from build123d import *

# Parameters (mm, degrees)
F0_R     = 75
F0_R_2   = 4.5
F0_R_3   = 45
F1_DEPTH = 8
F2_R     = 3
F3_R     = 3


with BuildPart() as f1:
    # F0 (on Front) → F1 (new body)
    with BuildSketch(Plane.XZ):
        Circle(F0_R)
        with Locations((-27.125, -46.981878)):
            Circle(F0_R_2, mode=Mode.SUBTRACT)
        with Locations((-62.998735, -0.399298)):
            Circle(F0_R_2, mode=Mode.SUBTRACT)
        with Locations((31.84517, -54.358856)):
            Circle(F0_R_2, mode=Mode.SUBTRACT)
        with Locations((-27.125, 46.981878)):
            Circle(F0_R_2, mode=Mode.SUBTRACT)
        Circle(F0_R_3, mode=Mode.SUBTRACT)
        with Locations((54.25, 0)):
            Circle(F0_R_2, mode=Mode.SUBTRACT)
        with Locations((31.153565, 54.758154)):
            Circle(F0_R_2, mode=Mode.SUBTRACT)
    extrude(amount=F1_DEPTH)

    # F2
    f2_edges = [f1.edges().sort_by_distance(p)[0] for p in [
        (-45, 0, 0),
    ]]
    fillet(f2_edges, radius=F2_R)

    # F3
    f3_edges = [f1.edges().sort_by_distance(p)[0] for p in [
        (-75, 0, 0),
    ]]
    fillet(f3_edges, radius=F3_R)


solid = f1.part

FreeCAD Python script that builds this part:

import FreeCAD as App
import Part
import Sketcher

V = App.Vector
Q = App.Units.Quantity


def edges_at(feature, points):
    """Names of the edges that pass closest to the given points."""
    edges = feature.Shape.Edges
    near = lambda p: min(range(len(edges)), key=lambda i: edges[i].distToShape(Part.Vertex(*p))[0])
    return sorted({f"Edge{near(p) + 1}" for p in points})

doc = App.newDocument("Part")
body = doc.addObject("PartDesign::Body", "Body")

sketch1 = body.newObject("Sketcher::SketchObject", "Sketch")
sketch1.AttachmentSupport = (doc.getObject("XZ_Plane"), [""])
sketch1.MapMode = "FlatFace"
sketch1.addGeometry(Part.Circle(V(0, 0, 0), V(0, 0, 1), 75), False)
sketch1.addGeometry(Part.Circle(V(-27.125, -46.981878, 0), V(0, 0, 1), 4.5), False)
sketch1.addGeometry(Part.Circle(V(-62.998735, -0.399298, 0), V(0, 0, 1), 4.5), False)
sketch1.addGeometry(Part.Circle(V(31.84517, -54.358856, 0), V(0, 0, 1), 4.5), False)
sketch1.addGeometry(Part.Circle(V(0, 0, 0), V(0, 0, 1), 45), False)
sketch1.addGeometry(Part.Circle(V(54.25, 0, 0), V(0, 0, 1), 4.5), False)
sketch1.addGeometry(Part.Circle(V(-27.125, 46.981878, 0), V(0, 0, 1), 4.5), False)
sketch1.addGeometry(Part.Circle(V(31.153565, 54.758154, 0), V(0, 0, 1), 4.5), False)
sketch1.addConstraint(Sketcher.Constraint("Coincident", 0, 3, -1, 1))
sketch1.addConstraint(Sketcher.Constraint("Coincident", 4, 3, -1, 1))
sketch1.addConstraint(Sketcher.Constraint("Equal", 1, 2))
sketch1.addConstraint(Sketcher.Constraint("Equal", 2, 3))
sketch1.addConstraint(Sketcher.Constraint("Equal", 3, 5))
sketch1.addConstraint(Sketcher.Constraint("Equal", 5, 6))
sketch1.addConstraint(Sketcher.Constraint("Equal", 6, 7))
sketch1.addConstraint(Sketcher.Constraint("Symmetric", 1, 3, 6, 3, -1))
sketch1.addConstraint(Sketcher.Constraint("PointOnObject", 5, 3, -1))
sketch1.addConstraint(Sketcher.Constraint("Diameter", 0, Q("150 mm")))
sketch1.addConstraint(Sketcher.Constraint("Diameter", 1, Q("9 mm")))
sketch1.addConstraint(Sketcher.Constraint("Diameter", 4, Q("90 mm")))
sketch1.addConstraint(Sketcher.Constraint("DistanceX", -1, 1, 5, 3, Q("54.25 mm")))
sketch1.addConstraint(Sketcher.Constraint("DistanceX", 1, 3, -1, 1, Q("27.125 mm")))
sketch1.addConstraint(Sketcher.Constraint("DistanceX", 2, 3, 7, 3, Q("94.1523 mm")))
sketch1.addConstraint(Sketcher.Constraint("DistanceY", 1, 3, -1, 1, Q("46.981878 mm")))
sketch1.addConstraint(Sketcher.Constraint("DistanceX", -1, 1, 3, 3, Q("31.84517 mm")))
sketch1.addConstraint(Sketcher.Constraint("DistanceY", 1, 3, 2, 3, Q("46.58258 mm")))
sketch1.addConstraint(Sketcher.Constraint("DistanceY", 3, 3, 1, 3, Q("7.376978 mm")))
sketch1.addConstraint(Sketcher.Constraint("DistanceX", 2, 3, -1, 1, Q("62.998735 mm")))
sketch1.addConstraint(Sketcher.Constraint("DistanceY", -1, 1, 7, 3, Q("54.758154 mm")))
pad1 = body.newObject("PartDesign::Pad", "Pad")
pad1.Profile = sketch1
pad1.Length = 8
doc.recompute()

fillet = body.newObject("PartDesign::Fillet", "Fillet")
fillet.Base = (pad1, edges_at(pad1, [(-45, 0, 0)]))
fillet.Radius = 3
doc.recompute()

fillet2 = body.newObject("PartDesign::Fillet", "Fillet001")
fillet2.Base = (fillet, edges_at(fillet, [(-75, 0, 0)]))
fillet2.Radius = 3

doc.recompute()
